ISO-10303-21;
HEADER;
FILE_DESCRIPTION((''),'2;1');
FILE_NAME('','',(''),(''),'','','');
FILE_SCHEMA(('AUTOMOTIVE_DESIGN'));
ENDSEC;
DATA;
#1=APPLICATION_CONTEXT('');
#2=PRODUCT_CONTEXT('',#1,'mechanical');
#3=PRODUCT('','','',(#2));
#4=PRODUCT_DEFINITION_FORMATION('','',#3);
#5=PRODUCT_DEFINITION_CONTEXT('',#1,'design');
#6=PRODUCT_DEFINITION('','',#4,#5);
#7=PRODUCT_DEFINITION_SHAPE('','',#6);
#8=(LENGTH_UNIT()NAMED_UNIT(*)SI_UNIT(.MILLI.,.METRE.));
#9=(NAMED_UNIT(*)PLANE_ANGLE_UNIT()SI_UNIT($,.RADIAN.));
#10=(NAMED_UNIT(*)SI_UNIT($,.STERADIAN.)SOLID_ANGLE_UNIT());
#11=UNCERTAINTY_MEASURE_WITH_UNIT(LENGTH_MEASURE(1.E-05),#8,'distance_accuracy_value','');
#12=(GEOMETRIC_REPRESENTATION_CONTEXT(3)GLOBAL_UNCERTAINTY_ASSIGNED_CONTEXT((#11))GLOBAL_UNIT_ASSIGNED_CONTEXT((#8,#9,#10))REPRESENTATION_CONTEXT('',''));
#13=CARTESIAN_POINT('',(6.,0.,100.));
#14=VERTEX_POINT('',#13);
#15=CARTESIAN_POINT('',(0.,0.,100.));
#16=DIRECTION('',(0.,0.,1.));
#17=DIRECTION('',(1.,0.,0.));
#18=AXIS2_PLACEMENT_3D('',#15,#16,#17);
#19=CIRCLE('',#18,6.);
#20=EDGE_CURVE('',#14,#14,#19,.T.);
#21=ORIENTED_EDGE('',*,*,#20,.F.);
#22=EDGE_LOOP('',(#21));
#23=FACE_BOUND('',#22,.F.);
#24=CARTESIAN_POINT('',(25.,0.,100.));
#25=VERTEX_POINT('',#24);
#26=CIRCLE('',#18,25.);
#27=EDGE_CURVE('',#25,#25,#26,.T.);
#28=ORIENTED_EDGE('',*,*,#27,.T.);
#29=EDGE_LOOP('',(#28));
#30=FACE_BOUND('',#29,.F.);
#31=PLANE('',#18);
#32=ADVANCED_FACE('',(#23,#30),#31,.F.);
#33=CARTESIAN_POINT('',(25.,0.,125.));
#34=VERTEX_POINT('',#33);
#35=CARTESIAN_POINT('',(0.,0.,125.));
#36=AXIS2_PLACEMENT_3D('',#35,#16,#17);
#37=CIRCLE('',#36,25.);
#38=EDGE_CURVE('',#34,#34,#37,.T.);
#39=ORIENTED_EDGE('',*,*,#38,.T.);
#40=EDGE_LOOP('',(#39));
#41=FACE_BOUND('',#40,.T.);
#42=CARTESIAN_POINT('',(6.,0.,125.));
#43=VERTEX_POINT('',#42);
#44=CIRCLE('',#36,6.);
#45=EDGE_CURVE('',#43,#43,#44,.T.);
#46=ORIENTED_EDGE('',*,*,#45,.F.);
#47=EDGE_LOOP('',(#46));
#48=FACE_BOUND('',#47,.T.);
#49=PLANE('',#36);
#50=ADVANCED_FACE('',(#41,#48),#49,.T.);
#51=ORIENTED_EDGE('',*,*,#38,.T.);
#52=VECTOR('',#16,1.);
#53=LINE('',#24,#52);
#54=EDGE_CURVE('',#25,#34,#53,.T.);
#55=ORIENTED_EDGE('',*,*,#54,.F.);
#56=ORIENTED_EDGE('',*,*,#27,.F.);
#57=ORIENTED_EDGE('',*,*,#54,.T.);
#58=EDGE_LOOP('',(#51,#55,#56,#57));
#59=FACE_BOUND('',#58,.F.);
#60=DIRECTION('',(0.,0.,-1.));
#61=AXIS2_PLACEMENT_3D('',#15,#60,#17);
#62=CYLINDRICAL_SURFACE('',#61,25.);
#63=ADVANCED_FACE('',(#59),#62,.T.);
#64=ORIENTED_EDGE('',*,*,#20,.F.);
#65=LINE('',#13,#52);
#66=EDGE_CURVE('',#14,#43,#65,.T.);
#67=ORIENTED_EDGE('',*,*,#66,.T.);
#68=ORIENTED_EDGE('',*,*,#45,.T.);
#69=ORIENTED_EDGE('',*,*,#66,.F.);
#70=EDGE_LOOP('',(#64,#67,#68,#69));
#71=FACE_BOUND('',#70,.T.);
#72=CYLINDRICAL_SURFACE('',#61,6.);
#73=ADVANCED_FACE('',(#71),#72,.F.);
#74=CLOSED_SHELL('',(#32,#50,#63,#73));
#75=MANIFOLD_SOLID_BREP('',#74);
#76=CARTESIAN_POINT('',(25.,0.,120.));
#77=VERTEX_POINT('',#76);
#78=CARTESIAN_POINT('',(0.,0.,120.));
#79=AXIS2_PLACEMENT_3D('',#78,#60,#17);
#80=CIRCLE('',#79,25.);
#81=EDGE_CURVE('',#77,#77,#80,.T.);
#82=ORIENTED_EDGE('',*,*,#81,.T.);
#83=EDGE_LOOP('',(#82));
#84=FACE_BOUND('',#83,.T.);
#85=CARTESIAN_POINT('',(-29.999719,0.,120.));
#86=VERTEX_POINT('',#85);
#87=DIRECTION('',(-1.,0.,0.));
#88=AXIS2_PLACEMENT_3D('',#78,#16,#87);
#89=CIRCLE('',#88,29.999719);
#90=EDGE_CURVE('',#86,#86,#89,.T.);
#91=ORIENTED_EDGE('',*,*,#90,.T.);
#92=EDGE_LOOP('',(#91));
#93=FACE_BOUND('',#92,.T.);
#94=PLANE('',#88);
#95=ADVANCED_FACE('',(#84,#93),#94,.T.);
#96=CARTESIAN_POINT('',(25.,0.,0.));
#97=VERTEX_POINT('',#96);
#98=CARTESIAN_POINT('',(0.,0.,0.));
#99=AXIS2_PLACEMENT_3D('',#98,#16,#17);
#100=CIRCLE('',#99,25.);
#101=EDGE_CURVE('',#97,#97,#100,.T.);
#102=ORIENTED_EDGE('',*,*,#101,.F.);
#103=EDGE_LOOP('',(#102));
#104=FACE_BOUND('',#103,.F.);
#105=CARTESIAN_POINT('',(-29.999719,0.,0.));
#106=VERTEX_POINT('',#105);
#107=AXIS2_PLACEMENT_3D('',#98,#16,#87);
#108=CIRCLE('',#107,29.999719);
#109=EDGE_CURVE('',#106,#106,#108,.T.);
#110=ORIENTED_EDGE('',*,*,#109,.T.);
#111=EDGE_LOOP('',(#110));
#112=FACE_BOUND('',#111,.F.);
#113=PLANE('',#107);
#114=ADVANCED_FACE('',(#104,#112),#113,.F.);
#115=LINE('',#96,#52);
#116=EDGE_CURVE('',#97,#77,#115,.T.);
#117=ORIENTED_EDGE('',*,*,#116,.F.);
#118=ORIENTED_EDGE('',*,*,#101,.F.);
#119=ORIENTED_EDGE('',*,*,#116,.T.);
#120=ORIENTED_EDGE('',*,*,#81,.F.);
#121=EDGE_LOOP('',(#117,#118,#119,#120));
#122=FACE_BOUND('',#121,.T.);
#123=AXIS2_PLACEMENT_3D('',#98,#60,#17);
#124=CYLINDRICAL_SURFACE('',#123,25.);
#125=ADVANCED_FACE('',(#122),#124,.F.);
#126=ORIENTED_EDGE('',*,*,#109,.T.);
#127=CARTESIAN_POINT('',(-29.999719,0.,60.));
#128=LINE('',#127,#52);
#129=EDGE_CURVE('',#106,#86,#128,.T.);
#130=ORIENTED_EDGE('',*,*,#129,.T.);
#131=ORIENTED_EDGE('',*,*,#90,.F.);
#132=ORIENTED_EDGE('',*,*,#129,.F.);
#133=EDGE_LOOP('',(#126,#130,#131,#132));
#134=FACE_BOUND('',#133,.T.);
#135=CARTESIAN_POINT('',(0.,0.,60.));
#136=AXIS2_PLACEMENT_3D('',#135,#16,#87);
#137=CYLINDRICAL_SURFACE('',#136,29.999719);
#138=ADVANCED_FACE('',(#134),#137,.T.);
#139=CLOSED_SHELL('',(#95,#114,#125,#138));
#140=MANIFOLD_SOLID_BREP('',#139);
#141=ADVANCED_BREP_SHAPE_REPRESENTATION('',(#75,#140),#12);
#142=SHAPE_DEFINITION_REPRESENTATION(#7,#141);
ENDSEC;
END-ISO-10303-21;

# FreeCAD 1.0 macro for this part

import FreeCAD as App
import Part
import Sketcher

V = App.Vector
Q = App.Units.Quantity

doc = App.newDocument("Part")
body = doc.addObject("PartDesign::Body", "Body")

sketch1 = body.newObject("Sketcher::SketchObject", "Sketch")
sketch1.AttachmentSupport = (doc.getObject("XZ_Plane"), [""])
sketch1.MapMode = "FlatFace"
sketch1.addGeometry([
    Part.LineSegment(V(-30, 120, 0), V(-30, 0, 0)),
    Part.LineSegment(V(-30, 0, 0), V(0, 0, 0)),
    Part.LineSegment(V(0, 0, 0), V(0, 120, 0)),
    Part.LineSegment(V(0, 120, 0), V(-30, 120, 0)),
], False)
sketch1.addConstraint([
    Sketcher.Constraint("Coincident", 0, 2, 1, 1),
    Sketcher.Constraint("Coincident", 1, 2, 2, 1),
    Sketcher.Constraint("Coincident", 2, 2, 3, 1),
    Sketcher.Constraint("Coincident", 3, 2, 0, 1),
    Sketcher.Constraint("Vertical", 0),
    Sketcher.Constraint("Horizontal", 1),
    Sketcher.Constraint("Vertical", 2),
    Sketcher.Constraint("Horizontal", 3),
    Sketcher.Constraint("Coincident", 1, 2, -1, 1),
    Sketcher.Constraint("DistanceY", 0, 2, 0, 1, Q("120 mm")),
    Sketcher.Constraint("DistanceX", 1, 1, 1, 2, Q("29.999719 mm")),
])
revolution = body.newObject("PartDesign::Revolution", "Revolution")
revolution.Profile = sketch1
revolution.ReferenceAxis = (sketch1, ["V_Axis"])
revolution.Angle = 360

sketch2 = body.newObject("Sketcher::SketchObject", "Sketch001")
sketch2.AttachmentSupport = (doc.getObject("XY_Plane"), [""])
sketch2.MapMode = "FlatFace"
sketch2.addGeometry(Part.Circle(V(0, 0, 0), V(0, 0, 1), 25), False)
sketch2.addConstraint([
    Sketcher.Constraint("Coincident", 0, 3, -1, 1),
    Sketcher.Constraint("Diameter", 0, Q("50 mm")),
])
pocket1 = body.newObject("PartDesign::Pocket", "Pocket")
pocket1.Profile = sketch2
pocket1.Type = "ThroughAll"
pocket1.Reversed = True

sketch3 = body.newObject("Sketcher::SketchObject", "Sketch002")
sketch3.AttachmentSupport = (doc.getObject("XY_Plane"), [""])
sketch3.MapMode = "FlatFace"
sketch3.addGeometry(Part.Circle(V(0, 0, 0), V(0, 0, 1), 5), False)
sketch3.addConstraint([
    Sketcher.Constraint("Coincident", 0, 3, -1, 1),
    Sketcher.Constraint("Diameter", 0, Q("10 mm")),
])
pocket2 = body.newObject("PartDesign::Pocket", "Pocket001")
pocket2.Profile = sketch3
pocket2.Type = "ThroughAll"
pocket2.Reversed = True
body2 = doc.addObject("PartDesign::Body", "Body001")

sketch4 = body2.newObject("Sketcher::SketchObject", "Sketch003")
sketch4.AttachmentSupport = (doc.getObject("XY_Plane001"), [""])
sketch4.MapMode = "FlatFace"
sketch4.AttachmentOffset = App.Placement(V(0, 0, 100), App.Rotation())
sketch4.addGeometry([
    Part.Circle(V(0, 0, 0), V(0, 0, 1), 25),
    Part.Circle(V(0, 0, 0), V(0, 0, 1), 6),
], False)
sketch4.addConstraint([
    Sketcher.Constraint("Coincident", 0, 3, -1, 1),
    Sketcher.Constraint("Coincident", 1, 3, -1, 1),
    Sketcher.Constraint("Diameter", 0, Q("50 mm")),
    Sketcher.Constraint("Diameter", 1, Q("12 mm")),
])
pad1 = body2.newObject("PartDesign::Pad", "Pad")
pad1.Profile = sketch4
pad1.Length = 25

doc.recompute()
